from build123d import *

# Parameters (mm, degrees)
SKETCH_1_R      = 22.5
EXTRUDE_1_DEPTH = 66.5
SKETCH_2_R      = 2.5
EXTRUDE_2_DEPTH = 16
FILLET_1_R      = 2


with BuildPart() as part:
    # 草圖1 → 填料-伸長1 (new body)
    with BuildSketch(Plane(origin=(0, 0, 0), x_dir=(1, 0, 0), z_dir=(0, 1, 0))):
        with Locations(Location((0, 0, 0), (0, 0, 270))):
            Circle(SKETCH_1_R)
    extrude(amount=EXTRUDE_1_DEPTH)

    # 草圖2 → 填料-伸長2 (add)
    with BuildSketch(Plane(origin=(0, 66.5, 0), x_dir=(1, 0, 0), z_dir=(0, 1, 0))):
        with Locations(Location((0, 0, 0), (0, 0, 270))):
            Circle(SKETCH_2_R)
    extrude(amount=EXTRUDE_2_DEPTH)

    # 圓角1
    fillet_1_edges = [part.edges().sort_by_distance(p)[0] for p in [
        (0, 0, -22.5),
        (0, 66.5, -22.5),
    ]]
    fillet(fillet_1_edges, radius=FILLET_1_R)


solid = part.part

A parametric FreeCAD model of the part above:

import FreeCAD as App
import Part
import Sketcher

V = App.Vector


def edges_at(feature, points):
    """Names of the edges that pass closest to the given points."""
    edges = feature.Shape.Edges
    near = lambda p: min(range(len(edges)), key=lambda i: edges[i].distToShape(Part.Vertex(*p))[0])
    return sorted({f"Edge{near(p) + 1}" for p in points})

doc = App.newDocument("Part")
params = doc.addObject("Spreadsheet::Sheet", "Params")
for row, (alias, value) in enumerate([
    ("sketch1_diameter", "45 mm"),
    ("pad1_length", "66.5 mm"),
    ("sketch2_diameter", "5 mm"),
    ("pad2_length", "16 mm"),
    ("fillet_radius", "2 mm"),
], start=1):
    params.set(f"A{row}", alias)
    params.set(f"B{row}", "=" + value)
    params.setAlias(f"B{row}", alias)

body = doc.addObject("PartDesign::Body", "Body")

sketch1 = body.newObject("Sketcher::SketchObject", "Sketch")
sketch1.AttachmentSupport = (doc.getObject("XZ_Plane"), [""])
sketch1.MapMode = "FlatFace"
sketch1.addGeometry(Part.Circle(V(0, 0, 0), V(0, 0, 1), 22), False)
sketch1.addConstraint([
    Sketcher.Constraint("Coincident", 0, 3, -1, 1),
    Sketcher.Constraint("Diameter", 0, 45.0),
])
sketch1.setExpression("Constraints[1]", "Params.sketch1_diameter")
pad1 = body.newObject("PartDesign::Pad", "Pad")
pad1.Profile = sketch1
pad1.setExpression("Length", "Params.pad1_length")
pad1.Reversed = True

sketch2 = body.newObject("Sketcher::SketchObject", "Sketch001")
sketch2.AttachmentSupport = (doc.getObject("XZ_Plane"), [""])
sketch2.MapMode = "FlatFace"
sketch2.AttachmentOffset = App.Placement(V(0, 0, -66.5), App.Rotation())
sketch2.addGeometry(Part.Circle(V(0, 0, 0), V(0, 0, 1), 2.5), False)
sketch2.addConstraint([
    Sketcher.Constraint("Coincident", 0, 3, -1, 1),
    Sketcher.Constraint("Diameter", 0, 5.0),
])
sketch2.setExpression("Constraints[1]", "Params.sketch2_diameter")
pad2 = body.newObject("PartDesign::Pad", "Pad001")
pad2.Profile = sketch2
pad2.setExpression("Length", "Params.pad2_length")
pad2.Reversed = True
doc.recompute()

fillet = body.newObject("PartDesign::Fillet", "Fillet")
fillet.Base = (pad2, edges_at(pad2, [(0, 0, -22.5), (0, 66.5, -22.5)]))
fillet.setExpression("Radius", "Params.fillet_radius")

doc.recompute()
